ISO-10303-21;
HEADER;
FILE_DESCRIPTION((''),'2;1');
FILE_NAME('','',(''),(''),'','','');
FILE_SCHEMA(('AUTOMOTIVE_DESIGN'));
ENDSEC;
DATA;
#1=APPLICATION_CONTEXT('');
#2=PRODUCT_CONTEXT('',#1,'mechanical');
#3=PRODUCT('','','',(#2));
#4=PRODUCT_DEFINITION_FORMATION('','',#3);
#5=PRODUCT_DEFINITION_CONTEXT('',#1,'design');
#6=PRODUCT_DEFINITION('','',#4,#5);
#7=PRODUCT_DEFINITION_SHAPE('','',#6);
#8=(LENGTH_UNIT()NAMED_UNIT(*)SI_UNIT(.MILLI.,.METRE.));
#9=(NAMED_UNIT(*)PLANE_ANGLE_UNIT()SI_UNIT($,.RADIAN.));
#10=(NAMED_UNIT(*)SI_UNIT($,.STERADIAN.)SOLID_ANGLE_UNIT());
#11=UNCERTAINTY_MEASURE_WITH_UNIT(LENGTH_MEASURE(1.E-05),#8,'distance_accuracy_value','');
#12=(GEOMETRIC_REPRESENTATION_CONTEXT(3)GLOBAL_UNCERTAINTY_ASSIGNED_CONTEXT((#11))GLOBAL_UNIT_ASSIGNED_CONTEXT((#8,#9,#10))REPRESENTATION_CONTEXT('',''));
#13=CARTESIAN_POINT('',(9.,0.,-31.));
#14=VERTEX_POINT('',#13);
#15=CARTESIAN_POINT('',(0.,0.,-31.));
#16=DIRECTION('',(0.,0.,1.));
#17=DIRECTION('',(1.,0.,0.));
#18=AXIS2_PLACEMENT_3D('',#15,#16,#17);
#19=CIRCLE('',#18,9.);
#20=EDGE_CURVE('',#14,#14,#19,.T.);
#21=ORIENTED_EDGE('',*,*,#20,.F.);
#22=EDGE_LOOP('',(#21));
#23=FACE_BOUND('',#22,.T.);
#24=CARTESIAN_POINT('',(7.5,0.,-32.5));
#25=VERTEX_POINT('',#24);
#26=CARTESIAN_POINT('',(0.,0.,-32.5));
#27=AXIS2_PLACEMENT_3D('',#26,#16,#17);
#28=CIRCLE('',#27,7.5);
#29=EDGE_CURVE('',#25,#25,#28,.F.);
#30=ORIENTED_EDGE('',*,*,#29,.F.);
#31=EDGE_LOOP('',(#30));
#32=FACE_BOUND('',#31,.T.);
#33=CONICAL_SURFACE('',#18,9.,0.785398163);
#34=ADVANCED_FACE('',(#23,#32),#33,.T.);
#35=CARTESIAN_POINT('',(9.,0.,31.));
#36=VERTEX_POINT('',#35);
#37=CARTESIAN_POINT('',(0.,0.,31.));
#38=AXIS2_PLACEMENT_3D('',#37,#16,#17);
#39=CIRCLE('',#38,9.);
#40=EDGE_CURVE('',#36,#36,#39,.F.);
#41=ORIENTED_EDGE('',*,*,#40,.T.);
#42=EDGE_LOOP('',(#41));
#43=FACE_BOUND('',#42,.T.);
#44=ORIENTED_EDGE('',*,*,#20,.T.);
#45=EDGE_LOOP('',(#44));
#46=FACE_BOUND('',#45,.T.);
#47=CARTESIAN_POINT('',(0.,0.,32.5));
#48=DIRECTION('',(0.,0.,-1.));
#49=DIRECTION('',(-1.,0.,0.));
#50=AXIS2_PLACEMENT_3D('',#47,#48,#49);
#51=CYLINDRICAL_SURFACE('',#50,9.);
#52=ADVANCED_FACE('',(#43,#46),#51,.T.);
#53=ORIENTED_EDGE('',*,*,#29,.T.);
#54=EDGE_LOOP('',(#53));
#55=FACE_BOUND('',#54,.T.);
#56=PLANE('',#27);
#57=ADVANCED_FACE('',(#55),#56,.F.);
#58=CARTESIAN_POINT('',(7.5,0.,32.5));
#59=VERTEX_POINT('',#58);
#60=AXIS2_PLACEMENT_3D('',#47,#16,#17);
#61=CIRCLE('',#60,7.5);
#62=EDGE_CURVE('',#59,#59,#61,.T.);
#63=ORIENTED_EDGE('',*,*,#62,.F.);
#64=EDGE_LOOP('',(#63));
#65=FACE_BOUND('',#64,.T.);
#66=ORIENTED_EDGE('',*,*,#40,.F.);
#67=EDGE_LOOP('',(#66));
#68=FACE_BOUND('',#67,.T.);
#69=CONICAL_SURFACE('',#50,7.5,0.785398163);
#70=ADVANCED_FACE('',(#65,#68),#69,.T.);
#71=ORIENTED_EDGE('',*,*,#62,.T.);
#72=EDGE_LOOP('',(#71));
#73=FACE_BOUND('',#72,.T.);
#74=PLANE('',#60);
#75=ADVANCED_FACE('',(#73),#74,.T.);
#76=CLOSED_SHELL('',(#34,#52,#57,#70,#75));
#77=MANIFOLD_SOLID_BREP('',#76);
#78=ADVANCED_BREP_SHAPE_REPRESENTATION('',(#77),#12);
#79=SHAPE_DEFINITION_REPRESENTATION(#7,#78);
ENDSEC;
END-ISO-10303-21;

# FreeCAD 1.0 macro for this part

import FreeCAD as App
import Part
import Sketcher

V = App.Vector


def edges_at(feature, points):
    """Names of the edges that pass closest to the given points."""
    edges = feature.Shape.Edges
    near = lambda p: min(range(len(edges)), key=lambda i: edges[i].distToShape(Part.Vertex(*p))[0])
    return sorted({f"Edge{near(p) + 1}" for p in points})

doc = App.newDocument("Part")
body = doc.addObject("PartDesign::Body", "Body")

sketch1 = doc.addObject("Sketcher::SketchObject", "Sketch")
body.addObject(sketch1)
sketch1.AttachmentSupport = (doc.XY_Plane, [""])
sketch1.MapMode = "FlatFace"
sketch1.addGeometry(Part.Circle(V(0, 0, 0), V(0, 0, 1), 9), False)
sketch1.addConstraint([
    Sketcher.Constraint("Coincident", 0, 3, -1, 1),
    Sketcher.Constraint("Diameter", 0, 18.0),
])
pad1 = doc.addObject("PartDesign::Pad", "Pad")
body.addObject(pad1)
pad1.Profile = sketch1
pad1.Length = 65
pad1.Midplane = True
doc.recompute()

chamfer = doc.addObject("PartDesign::Chamfer", "Chamfer")
body.addObject(chamfer)
chamfer.Base = (pad1, edges_at(pad1, [(-9, 0, -32.5), (-9, 0, 32.5)]))
chamfer.Size = 1.5

doc.recompute()
